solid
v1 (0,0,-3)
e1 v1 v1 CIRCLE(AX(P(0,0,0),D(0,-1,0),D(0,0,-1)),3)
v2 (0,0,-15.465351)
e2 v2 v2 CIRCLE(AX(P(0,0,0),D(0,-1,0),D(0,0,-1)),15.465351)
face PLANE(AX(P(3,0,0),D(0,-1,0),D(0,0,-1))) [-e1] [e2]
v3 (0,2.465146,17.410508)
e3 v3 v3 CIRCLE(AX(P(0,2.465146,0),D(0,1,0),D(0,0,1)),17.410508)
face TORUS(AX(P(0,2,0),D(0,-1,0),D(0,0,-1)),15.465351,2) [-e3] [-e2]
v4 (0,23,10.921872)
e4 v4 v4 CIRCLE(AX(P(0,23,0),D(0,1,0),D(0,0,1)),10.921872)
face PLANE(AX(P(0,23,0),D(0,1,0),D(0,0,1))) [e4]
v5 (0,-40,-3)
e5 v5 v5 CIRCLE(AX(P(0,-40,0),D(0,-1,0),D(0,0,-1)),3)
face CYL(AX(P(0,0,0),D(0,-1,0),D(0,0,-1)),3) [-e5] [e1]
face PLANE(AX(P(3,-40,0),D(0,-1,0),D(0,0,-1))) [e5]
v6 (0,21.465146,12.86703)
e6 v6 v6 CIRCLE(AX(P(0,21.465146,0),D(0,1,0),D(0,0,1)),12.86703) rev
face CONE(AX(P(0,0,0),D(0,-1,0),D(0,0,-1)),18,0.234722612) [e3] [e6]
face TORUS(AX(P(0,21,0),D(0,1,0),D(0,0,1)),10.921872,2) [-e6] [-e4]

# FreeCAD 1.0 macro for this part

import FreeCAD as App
import Part
import Sketcher


def edges_at(feature, points):
    """Names of the edges that pass closest to the given points."""
    edges = feature.Shape.Edges
    near = lambda p: min(range(len(edges)), key=lambda i: edges[i].distToShape(Part.Vertex(*p))[0])
    return sorted({f"Edge{near(p) + 1}" for p in points})

doc = App.newDocument("Part")
body = doc.addObject("PartDesign::Body", "Body")

sketch1 = doc.addObject("Sketcher::SketchObject", "Sketch")
body.addObject(sketch1)
sketch1.AttachmentSupport = (doc.XY_Plane, [""])
sketch1.MapMode = "FlatFace"
sketch1.addGeometry([
    Part.LineSegment(App.Vector(3, 0, 0), App.Vector(18, 0, 0)),
    Part.LineSegment(App.Vector(18, 0, 0), App.Vector(12.5, 23, 0)),
    Part.LineSegment(App.Vector(12.5, 23, 0), App.Vector(0, 23, 0)),
    Part.LineSegment(App.Vector(0, 23, 0), App.Vector(0, -40, 0)),
    Part.LineSegment(App.Vector(0, -40, 0), App.Vector(3, -40, 0)),
    Part.LineSegment(App.Vector(3, -40, 0), App.Vector(3, 0, 0)),
], False)
sketch1.addConstraint([
    Sketcher.Constraint("Coincident", 0, 2, 1, 1),
    Sketcher.Constraint("Coincident", 1, 2, 2, 1),
    Sketcher.Constraint("Coincident", 2, 2, 3, 1),
    Sketcher.Constraint("Coincident", 3, 2, 4, 1),
    Sketcher.Constraint("Coincident", 4, 2, 5, 1),
    Sketcher.Constraint("Coincident", 5, 2, 0, 1),
    Sketcher.Constraint("Horizontal", 0),
    Sketcher.Constraint("Horizontal", 2),
    Sketcher.Constraint("Vertical", 3),
    Sketcher.Constraint("Horizontal", 4),
    Sketcher.Constraint("Vertical", 5),
    Sketcher.Constraint("PointOnObject", 0, 2, -1),
    Sketcher.Constraint("PointOnObject", 2, 2, -2),
    Sketcher.Constraint("DistanceX", 0, 1, 0, 2, 15.0),
    Sketcher.Constraint("DistanceX", 4, 1, 4, 2, 3.0),
    Sketcher.Constraint("DistanceY", 3, 2, 3, 1, 63.0),
    Sketcher.Constraint("DistanceY", 5, 1, 5, 2, 40.0),
    Sketcher.Constraint("DistanceX", 2, 2, 2, 1, 12.5),
])
revolution = doc.addObject("PartDesign::Revolution", "Revolution")
body.addObject(revolution)
revolution.Profile = sketch1
revolution.ReferenceAxis = (sketch1, ["V_Axis"])
revolution.Angle = 360
doc.recompute()

fillet = doc.addObject("PartDesign::Fillet", "Fillet")
body.addObject(fillet)
fillet.Base = (revolution, edges_at(revolution, [(0, 0, 18), (0, 23, 12.5)]))
fillet.Radius = 2

doc.recompute()
